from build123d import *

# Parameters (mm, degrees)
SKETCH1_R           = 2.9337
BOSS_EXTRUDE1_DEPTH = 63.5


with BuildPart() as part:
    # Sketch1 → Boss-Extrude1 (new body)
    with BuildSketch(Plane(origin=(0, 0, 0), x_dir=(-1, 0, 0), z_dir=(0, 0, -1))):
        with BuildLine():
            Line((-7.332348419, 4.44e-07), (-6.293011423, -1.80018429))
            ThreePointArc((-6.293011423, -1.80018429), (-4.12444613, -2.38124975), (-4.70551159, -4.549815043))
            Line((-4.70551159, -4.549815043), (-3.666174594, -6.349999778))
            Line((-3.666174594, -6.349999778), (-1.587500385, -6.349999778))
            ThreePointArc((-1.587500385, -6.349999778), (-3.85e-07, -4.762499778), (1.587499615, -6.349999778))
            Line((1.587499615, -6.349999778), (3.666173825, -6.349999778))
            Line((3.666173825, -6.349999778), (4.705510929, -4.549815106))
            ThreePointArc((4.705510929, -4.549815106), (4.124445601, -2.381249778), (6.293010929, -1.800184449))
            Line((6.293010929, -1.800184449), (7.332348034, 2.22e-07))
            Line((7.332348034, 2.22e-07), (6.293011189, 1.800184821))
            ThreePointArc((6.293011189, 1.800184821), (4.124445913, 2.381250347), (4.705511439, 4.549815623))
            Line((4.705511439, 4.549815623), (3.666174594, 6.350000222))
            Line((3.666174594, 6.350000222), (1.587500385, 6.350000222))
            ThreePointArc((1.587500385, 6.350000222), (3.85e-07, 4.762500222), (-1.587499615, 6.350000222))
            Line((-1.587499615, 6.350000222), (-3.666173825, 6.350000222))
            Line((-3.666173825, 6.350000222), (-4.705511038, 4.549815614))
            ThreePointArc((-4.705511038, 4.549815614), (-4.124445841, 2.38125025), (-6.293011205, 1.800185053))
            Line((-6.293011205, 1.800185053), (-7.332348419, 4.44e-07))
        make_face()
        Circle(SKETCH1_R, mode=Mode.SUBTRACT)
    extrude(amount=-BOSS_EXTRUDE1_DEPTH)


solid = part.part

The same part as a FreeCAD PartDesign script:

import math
import FreeCAD as App
import Part
import Sketcher
Q = App.Units.Quantity

doc = App.newDocument("Part")
body = doc.addObject("PartDesign::Body", "Body")

sketch1 = body.newObject("Sketcher::SketchObject", "Sketch")
sketch1.AttachmentSupport = (doc.getObject("XY_Plane"), [""])
sketch1.MapMode = "FlatFace"
sketch1.addGeometry([
    Part.LineSegment(App.Vector(7.3, 0, 0), App.Vector(6.3, -1.8, 0)),
    Part.ArcOfCircle(Part.Circle(App.Vector(5.5, -3.2, 0), App.Vector(0, 0, 1), 1.6), math.radians(60), math.radians(240)),
    Part.LineSegment(App.Vector(4.7, -4.5, 0), App.Vector(3.7, -6.3, 0)),
    Part.LineSegment(App.Vector(3.7, -6.3, 0), App.Vector(1.6, -6.3, 0)),
    Part.ArcOfCircle(Part.Circle(App.Vector(0, -6.3, 0), App.Vector(0, 0, 1), 1.6), math.radians(0), math.radians(180)),
    Part.LineSegment(App.Vector(-1.6, -6.3, 0), App.Vector(-3.7, -6.3, 0)),
    Part.LineSegment(App.Vector(-3.7, -6.3, 0), App.Vector(-4.7, -4.5, 0)),
    Part.ArcOfCircle(Part.Circle(App.Vector(-5.5, -3.2, 0), App.Vector(0, 0, 1), 1.6), math.radians(-60), math.radians(120)),
    Part.LineSegment(App.Vector(-6.3, -1.8, 0), App.Vector(-7.3, 0, 0)),
    Part.LineSegment(App.Vector(-7.3, 0, 0), App.Vector(-6.3, 1.8, 0)),
    Part.ArcOfCircle(Part.Circle(App.Vector(-5.5, 3.2, 0), App.Vector(0, 0, 1), 1.6), math.radians(-120), math.radians(60)),
    Part.LineSegment(App.Vector(-4.7, 4.5, 0), App.Vector(-3.7, 6.4, 0)),
    Part.LineSegment(App.Vector(-3.7, 6.4, 0), App.Vector(-1.6, 6.4, 0)),
    Part.ArcOfCircle(Part.Circle(App.Vector(0, 6.4, 0), App.Vector(0, 0, 1), 1.6), math.radians(180), math.radians(360)),
    Part.LineSegment(App.Vector(1.6, 6.4, 0), App.Vector(3.7, 6.4, 0)),
    Part.LineSegment(App.Vector(3.7, 6.4, 0), App.Vector(4.7, 4.5, 0)),
    Part.ArcOfCircle(Part.Circle(App.Vector(5.5, 3.2, 0), App.Vector(0, 0, 1), 1.6), math.radians(120), math.radians(300)),
    Part.LineSegment(App.Vector(6.3, 1.8, 0), App.Vector(7.3, 0, 0)),
    Part.Circle(App.Vector(0, 0, 0), App.Vector(0, 0, 1), 2.9),
], False)
sketch1.addConstraint([
    Sketcher.Constraint("Coincident", 0, 2, 1, 1),
    Sketcher.Constraint("Coincident", 1, 2, 2, 1),
    Sketcher.Constraint("Coincident", 2, 2, 3, 1),
    Sketcher.Constraint("Coincident", 3, 2, 4, 1),
    Sketcher.Constraint("Coincident", 4, 2, 5, 1),
    Sketcher.Constraint("Coincident", 5, 2, 6, 1),
    Sketcher.Constraint("Coincident", 6, 2, 7, 1),
    Sketcher.Constraint("Coincident", 7, 2, 8, 1),
    Sketcher.Constraint("Coincident", 8, 2, 9, 1),
    Sketcher.Constraint("Coincident", 9, 2, 10, 1),
    Sketcher.Constraint("Coincident", 10, 2, 11, 1),
    Sketcher.Constraint("Coincident", 11, 2, 12, 1),
    Sketcher.Constraint("Coincident", 12, 2, 13, 1),
    Sketcher.Constraint("Coincident", 13, 2, 14, 1),
    Sketcher.Constraint("Coincident", 14, 2, 15, 1),
    Sketcher.Constraint("Coincident", 15, 2, 16, 1),
    Sketcher.Constraint("Coincident", 16, 2, 17, 1),
    Sketcher.Constraint("Coincident", 17, 2, 0, 1),
    Sketcher.Constraint("Horizontal", 3),
    Sketcher.Constraint("Horizontal", 5),
    Sketcher.Constraint("Horizontal", 12),
    Sketcher.Constraint("Horizontal", 14),
    Sketcher.Constraint("Coincident", 18, 3, -1, 1),
    Sketcher.Constraint("Equal", 1, 4),
    Sketcher.Constraint("Equal", 4, 7),
    Sketcher.Constraint("Equal", 7, 10),
    Sketcher.Constraint("Equal", 10, 13),
    Sketcher.Constraint("Equal", 13, 16),
    Sketcher.Constraint("Symmetric", 1, 3, 10, 3, -1, 1),
    Sketcher.Constraint("Symmetric", 4, 3, 13, 3, -1, 1),
    Sketcher.Constraint("Symmetric", 7, 3, 16, 3, -1, 1),
    Sketcher.Constraint("Symmetric", 2, 2, 11, 2, -1, 1),
    Sketcher.Constraint("Symmetric", 5, 2, 14, 2, -1, 1),
    Sketcher.Constraint("Symmetric", 8, 2, 17, 2, -1, 1),
    Sketcher.Constraint("Symmetric", 1, 3, 7, 3, -2),
    Sketcher.Constraint("Symmetric", 3, 2, 4, 2, -2),
    Sketcher.Constraint("PointOnObject", 8, 2, -1),
    Sketcher.Constraint("Parallel", 0, 2),
    Sketcher.Constraint("Parallel", 6, 8),
    Sketcher.Constraint("Parallel", 2, 9),
    Sketcher.Constraint("Parallel", 9, 11),
    Sketcher.Constraint("Parallel", 8, 15),
    Sketcher.Constraint("Parallel", 15, 17),
    Sketcher.Constraint("Horizontal", 4, 3, 2, 2),
    Sketcher.Constraint("Horizontal", 1, 2, 6, 2),
    Sketcher.Constraint("Horizontal", 0, 2, 7, 2),
    Sketcher.Constraint("Equal", 0, 2),
    Sketcher.Constraint("Diameter", 18, Q("0.231 in")),
    Sketcher.Constraint("Angle", 0, Q("-119.999997 deg")),
    Sketcher.Constraint("Radius", 1, Q("0.0625 in")),
    Sketcher.Constraint("DistanceY", 4, 3, 13, 3, Q("0.5 in")),
    Sketcher.Constraint("DistanceY", 7, 3, 10, 3, Q("0.25 in")),
    Sketcher.Constraint("DistanceX", 1, 3, 0, 2, Q("0.03125 in")),
    Sketcher.Constraint("DistanceX", 3, 2, 3, 1, 2.078674),
])
pad1 = body.newObject("PartDesign::Pad", "Pad")
pad1.Profile = sketch1
pad1.Length = Q("2.5 in")

doc.recompute()
